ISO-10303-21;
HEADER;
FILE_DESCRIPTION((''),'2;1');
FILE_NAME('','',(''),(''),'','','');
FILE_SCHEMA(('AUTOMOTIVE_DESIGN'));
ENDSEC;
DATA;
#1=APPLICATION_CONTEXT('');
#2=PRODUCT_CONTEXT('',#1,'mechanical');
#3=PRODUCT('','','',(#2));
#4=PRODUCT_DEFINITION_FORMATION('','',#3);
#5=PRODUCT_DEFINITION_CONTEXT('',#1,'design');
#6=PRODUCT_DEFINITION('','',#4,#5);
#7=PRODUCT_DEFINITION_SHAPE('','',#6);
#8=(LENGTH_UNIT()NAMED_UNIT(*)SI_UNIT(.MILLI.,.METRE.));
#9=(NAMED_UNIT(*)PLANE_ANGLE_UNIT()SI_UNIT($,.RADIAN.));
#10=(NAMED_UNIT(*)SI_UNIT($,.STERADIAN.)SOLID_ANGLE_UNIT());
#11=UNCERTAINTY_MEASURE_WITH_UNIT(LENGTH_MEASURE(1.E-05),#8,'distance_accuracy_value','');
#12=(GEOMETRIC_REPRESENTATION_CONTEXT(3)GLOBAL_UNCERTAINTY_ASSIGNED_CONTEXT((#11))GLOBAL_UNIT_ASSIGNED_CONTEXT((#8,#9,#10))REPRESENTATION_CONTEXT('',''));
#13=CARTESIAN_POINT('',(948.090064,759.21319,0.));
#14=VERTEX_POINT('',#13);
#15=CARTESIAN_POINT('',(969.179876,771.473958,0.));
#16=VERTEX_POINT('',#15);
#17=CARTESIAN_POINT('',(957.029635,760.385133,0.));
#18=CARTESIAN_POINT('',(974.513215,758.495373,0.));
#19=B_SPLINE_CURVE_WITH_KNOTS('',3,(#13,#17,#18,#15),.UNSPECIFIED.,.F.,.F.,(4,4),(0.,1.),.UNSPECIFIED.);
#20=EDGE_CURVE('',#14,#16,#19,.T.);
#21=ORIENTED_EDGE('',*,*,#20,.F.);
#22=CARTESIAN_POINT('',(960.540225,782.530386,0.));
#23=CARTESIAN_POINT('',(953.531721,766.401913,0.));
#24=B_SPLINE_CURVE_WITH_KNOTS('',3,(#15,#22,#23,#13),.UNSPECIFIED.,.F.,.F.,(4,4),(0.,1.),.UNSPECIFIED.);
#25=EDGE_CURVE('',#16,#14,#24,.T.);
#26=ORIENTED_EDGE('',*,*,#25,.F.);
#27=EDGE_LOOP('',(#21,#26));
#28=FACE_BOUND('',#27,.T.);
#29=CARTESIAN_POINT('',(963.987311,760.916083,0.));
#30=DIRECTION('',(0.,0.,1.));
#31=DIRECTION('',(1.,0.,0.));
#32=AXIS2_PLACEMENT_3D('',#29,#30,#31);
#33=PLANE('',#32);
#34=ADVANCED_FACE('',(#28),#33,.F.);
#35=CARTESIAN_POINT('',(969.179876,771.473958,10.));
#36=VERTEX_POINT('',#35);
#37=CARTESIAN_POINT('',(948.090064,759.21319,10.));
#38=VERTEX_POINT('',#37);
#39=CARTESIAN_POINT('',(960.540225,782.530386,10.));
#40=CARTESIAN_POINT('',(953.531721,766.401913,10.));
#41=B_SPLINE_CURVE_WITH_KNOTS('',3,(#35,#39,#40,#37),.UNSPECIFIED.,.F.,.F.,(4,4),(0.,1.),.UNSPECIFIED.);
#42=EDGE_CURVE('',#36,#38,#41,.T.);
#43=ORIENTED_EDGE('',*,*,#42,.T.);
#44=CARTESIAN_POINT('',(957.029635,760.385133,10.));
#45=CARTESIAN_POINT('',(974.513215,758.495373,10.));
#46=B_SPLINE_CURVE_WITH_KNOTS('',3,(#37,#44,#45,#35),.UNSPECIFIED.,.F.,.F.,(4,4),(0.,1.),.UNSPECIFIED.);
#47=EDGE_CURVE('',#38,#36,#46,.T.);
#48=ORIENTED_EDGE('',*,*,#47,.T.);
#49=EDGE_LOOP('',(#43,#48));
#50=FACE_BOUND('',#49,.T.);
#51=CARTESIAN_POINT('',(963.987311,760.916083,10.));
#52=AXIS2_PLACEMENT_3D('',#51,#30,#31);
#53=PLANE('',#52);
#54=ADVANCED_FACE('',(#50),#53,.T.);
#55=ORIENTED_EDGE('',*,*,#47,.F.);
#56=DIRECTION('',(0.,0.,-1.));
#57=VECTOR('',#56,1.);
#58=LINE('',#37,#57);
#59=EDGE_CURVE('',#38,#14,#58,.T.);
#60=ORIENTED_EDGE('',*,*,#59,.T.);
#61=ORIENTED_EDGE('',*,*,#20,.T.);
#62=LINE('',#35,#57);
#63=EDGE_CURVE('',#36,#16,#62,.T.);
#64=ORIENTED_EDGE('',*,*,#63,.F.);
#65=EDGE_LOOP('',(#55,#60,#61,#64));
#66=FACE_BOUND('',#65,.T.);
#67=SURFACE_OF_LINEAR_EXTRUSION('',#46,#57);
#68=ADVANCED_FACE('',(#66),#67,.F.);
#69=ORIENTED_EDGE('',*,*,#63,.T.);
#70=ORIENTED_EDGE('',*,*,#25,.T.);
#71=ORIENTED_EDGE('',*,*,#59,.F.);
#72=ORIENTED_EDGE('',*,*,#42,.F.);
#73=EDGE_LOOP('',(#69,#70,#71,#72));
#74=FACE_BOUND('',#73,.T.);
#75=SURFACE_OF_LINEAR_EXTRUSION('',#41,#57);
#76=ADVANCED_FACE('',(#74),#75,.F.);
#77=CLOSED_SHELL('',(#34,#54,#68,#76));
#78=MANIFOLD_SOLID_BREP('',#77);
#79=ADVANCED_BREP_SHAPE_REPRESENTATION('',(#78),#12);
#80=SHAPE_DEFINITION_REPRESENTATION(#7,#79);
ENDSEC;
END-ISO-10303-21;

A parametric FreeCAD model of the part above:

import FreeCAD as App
import Part
import Sketcher
from FreeCAD import Vector

doc = App.newDocument("Part")
body = doc.addObject("PartDesign::Body", "Body")

# Sketch on XY plane
sketch1 = body.newObject("Sketcher::SketchObject", "Sketch")
sketch1.AttachmentSupport = (doc.getObject("XY_Plane"), [""])
sketch1.MapMode = "FlatFace"
sketch1.addGeometry([
    Part.BSplineCurve([Vector(948.090064, 759.21319, 0), Vector(953.531721, 766.401913, 0), Vector(960.540225, 782.530386, 0), Vector(969.179876, 771.473958, 0)], [4, 4], [0, 1], False, 3, [1, 1, 1, 1], False),
    Part.BSplineCurve([Vector(948.090064, 759.21319, 0), Vector(957.029635, 760.385133, 0), Vector(974.513215, 758.495373, 0), Vector(969.179876, 771.473958, 0)], [4, 4], [0, 1], False, 3, [1, 1, 1, 1], False),
], False)
sketch1.addConstraint([
    Sketcher.Constraint("Block", 0),
    Sketcher.Constraint("Block", 1),
])
pad1 = body.newObject("PartDesign::Pad", "Pad")
pad1.Profile = sketch1
pad1.Length = 10

doc.recompute()
